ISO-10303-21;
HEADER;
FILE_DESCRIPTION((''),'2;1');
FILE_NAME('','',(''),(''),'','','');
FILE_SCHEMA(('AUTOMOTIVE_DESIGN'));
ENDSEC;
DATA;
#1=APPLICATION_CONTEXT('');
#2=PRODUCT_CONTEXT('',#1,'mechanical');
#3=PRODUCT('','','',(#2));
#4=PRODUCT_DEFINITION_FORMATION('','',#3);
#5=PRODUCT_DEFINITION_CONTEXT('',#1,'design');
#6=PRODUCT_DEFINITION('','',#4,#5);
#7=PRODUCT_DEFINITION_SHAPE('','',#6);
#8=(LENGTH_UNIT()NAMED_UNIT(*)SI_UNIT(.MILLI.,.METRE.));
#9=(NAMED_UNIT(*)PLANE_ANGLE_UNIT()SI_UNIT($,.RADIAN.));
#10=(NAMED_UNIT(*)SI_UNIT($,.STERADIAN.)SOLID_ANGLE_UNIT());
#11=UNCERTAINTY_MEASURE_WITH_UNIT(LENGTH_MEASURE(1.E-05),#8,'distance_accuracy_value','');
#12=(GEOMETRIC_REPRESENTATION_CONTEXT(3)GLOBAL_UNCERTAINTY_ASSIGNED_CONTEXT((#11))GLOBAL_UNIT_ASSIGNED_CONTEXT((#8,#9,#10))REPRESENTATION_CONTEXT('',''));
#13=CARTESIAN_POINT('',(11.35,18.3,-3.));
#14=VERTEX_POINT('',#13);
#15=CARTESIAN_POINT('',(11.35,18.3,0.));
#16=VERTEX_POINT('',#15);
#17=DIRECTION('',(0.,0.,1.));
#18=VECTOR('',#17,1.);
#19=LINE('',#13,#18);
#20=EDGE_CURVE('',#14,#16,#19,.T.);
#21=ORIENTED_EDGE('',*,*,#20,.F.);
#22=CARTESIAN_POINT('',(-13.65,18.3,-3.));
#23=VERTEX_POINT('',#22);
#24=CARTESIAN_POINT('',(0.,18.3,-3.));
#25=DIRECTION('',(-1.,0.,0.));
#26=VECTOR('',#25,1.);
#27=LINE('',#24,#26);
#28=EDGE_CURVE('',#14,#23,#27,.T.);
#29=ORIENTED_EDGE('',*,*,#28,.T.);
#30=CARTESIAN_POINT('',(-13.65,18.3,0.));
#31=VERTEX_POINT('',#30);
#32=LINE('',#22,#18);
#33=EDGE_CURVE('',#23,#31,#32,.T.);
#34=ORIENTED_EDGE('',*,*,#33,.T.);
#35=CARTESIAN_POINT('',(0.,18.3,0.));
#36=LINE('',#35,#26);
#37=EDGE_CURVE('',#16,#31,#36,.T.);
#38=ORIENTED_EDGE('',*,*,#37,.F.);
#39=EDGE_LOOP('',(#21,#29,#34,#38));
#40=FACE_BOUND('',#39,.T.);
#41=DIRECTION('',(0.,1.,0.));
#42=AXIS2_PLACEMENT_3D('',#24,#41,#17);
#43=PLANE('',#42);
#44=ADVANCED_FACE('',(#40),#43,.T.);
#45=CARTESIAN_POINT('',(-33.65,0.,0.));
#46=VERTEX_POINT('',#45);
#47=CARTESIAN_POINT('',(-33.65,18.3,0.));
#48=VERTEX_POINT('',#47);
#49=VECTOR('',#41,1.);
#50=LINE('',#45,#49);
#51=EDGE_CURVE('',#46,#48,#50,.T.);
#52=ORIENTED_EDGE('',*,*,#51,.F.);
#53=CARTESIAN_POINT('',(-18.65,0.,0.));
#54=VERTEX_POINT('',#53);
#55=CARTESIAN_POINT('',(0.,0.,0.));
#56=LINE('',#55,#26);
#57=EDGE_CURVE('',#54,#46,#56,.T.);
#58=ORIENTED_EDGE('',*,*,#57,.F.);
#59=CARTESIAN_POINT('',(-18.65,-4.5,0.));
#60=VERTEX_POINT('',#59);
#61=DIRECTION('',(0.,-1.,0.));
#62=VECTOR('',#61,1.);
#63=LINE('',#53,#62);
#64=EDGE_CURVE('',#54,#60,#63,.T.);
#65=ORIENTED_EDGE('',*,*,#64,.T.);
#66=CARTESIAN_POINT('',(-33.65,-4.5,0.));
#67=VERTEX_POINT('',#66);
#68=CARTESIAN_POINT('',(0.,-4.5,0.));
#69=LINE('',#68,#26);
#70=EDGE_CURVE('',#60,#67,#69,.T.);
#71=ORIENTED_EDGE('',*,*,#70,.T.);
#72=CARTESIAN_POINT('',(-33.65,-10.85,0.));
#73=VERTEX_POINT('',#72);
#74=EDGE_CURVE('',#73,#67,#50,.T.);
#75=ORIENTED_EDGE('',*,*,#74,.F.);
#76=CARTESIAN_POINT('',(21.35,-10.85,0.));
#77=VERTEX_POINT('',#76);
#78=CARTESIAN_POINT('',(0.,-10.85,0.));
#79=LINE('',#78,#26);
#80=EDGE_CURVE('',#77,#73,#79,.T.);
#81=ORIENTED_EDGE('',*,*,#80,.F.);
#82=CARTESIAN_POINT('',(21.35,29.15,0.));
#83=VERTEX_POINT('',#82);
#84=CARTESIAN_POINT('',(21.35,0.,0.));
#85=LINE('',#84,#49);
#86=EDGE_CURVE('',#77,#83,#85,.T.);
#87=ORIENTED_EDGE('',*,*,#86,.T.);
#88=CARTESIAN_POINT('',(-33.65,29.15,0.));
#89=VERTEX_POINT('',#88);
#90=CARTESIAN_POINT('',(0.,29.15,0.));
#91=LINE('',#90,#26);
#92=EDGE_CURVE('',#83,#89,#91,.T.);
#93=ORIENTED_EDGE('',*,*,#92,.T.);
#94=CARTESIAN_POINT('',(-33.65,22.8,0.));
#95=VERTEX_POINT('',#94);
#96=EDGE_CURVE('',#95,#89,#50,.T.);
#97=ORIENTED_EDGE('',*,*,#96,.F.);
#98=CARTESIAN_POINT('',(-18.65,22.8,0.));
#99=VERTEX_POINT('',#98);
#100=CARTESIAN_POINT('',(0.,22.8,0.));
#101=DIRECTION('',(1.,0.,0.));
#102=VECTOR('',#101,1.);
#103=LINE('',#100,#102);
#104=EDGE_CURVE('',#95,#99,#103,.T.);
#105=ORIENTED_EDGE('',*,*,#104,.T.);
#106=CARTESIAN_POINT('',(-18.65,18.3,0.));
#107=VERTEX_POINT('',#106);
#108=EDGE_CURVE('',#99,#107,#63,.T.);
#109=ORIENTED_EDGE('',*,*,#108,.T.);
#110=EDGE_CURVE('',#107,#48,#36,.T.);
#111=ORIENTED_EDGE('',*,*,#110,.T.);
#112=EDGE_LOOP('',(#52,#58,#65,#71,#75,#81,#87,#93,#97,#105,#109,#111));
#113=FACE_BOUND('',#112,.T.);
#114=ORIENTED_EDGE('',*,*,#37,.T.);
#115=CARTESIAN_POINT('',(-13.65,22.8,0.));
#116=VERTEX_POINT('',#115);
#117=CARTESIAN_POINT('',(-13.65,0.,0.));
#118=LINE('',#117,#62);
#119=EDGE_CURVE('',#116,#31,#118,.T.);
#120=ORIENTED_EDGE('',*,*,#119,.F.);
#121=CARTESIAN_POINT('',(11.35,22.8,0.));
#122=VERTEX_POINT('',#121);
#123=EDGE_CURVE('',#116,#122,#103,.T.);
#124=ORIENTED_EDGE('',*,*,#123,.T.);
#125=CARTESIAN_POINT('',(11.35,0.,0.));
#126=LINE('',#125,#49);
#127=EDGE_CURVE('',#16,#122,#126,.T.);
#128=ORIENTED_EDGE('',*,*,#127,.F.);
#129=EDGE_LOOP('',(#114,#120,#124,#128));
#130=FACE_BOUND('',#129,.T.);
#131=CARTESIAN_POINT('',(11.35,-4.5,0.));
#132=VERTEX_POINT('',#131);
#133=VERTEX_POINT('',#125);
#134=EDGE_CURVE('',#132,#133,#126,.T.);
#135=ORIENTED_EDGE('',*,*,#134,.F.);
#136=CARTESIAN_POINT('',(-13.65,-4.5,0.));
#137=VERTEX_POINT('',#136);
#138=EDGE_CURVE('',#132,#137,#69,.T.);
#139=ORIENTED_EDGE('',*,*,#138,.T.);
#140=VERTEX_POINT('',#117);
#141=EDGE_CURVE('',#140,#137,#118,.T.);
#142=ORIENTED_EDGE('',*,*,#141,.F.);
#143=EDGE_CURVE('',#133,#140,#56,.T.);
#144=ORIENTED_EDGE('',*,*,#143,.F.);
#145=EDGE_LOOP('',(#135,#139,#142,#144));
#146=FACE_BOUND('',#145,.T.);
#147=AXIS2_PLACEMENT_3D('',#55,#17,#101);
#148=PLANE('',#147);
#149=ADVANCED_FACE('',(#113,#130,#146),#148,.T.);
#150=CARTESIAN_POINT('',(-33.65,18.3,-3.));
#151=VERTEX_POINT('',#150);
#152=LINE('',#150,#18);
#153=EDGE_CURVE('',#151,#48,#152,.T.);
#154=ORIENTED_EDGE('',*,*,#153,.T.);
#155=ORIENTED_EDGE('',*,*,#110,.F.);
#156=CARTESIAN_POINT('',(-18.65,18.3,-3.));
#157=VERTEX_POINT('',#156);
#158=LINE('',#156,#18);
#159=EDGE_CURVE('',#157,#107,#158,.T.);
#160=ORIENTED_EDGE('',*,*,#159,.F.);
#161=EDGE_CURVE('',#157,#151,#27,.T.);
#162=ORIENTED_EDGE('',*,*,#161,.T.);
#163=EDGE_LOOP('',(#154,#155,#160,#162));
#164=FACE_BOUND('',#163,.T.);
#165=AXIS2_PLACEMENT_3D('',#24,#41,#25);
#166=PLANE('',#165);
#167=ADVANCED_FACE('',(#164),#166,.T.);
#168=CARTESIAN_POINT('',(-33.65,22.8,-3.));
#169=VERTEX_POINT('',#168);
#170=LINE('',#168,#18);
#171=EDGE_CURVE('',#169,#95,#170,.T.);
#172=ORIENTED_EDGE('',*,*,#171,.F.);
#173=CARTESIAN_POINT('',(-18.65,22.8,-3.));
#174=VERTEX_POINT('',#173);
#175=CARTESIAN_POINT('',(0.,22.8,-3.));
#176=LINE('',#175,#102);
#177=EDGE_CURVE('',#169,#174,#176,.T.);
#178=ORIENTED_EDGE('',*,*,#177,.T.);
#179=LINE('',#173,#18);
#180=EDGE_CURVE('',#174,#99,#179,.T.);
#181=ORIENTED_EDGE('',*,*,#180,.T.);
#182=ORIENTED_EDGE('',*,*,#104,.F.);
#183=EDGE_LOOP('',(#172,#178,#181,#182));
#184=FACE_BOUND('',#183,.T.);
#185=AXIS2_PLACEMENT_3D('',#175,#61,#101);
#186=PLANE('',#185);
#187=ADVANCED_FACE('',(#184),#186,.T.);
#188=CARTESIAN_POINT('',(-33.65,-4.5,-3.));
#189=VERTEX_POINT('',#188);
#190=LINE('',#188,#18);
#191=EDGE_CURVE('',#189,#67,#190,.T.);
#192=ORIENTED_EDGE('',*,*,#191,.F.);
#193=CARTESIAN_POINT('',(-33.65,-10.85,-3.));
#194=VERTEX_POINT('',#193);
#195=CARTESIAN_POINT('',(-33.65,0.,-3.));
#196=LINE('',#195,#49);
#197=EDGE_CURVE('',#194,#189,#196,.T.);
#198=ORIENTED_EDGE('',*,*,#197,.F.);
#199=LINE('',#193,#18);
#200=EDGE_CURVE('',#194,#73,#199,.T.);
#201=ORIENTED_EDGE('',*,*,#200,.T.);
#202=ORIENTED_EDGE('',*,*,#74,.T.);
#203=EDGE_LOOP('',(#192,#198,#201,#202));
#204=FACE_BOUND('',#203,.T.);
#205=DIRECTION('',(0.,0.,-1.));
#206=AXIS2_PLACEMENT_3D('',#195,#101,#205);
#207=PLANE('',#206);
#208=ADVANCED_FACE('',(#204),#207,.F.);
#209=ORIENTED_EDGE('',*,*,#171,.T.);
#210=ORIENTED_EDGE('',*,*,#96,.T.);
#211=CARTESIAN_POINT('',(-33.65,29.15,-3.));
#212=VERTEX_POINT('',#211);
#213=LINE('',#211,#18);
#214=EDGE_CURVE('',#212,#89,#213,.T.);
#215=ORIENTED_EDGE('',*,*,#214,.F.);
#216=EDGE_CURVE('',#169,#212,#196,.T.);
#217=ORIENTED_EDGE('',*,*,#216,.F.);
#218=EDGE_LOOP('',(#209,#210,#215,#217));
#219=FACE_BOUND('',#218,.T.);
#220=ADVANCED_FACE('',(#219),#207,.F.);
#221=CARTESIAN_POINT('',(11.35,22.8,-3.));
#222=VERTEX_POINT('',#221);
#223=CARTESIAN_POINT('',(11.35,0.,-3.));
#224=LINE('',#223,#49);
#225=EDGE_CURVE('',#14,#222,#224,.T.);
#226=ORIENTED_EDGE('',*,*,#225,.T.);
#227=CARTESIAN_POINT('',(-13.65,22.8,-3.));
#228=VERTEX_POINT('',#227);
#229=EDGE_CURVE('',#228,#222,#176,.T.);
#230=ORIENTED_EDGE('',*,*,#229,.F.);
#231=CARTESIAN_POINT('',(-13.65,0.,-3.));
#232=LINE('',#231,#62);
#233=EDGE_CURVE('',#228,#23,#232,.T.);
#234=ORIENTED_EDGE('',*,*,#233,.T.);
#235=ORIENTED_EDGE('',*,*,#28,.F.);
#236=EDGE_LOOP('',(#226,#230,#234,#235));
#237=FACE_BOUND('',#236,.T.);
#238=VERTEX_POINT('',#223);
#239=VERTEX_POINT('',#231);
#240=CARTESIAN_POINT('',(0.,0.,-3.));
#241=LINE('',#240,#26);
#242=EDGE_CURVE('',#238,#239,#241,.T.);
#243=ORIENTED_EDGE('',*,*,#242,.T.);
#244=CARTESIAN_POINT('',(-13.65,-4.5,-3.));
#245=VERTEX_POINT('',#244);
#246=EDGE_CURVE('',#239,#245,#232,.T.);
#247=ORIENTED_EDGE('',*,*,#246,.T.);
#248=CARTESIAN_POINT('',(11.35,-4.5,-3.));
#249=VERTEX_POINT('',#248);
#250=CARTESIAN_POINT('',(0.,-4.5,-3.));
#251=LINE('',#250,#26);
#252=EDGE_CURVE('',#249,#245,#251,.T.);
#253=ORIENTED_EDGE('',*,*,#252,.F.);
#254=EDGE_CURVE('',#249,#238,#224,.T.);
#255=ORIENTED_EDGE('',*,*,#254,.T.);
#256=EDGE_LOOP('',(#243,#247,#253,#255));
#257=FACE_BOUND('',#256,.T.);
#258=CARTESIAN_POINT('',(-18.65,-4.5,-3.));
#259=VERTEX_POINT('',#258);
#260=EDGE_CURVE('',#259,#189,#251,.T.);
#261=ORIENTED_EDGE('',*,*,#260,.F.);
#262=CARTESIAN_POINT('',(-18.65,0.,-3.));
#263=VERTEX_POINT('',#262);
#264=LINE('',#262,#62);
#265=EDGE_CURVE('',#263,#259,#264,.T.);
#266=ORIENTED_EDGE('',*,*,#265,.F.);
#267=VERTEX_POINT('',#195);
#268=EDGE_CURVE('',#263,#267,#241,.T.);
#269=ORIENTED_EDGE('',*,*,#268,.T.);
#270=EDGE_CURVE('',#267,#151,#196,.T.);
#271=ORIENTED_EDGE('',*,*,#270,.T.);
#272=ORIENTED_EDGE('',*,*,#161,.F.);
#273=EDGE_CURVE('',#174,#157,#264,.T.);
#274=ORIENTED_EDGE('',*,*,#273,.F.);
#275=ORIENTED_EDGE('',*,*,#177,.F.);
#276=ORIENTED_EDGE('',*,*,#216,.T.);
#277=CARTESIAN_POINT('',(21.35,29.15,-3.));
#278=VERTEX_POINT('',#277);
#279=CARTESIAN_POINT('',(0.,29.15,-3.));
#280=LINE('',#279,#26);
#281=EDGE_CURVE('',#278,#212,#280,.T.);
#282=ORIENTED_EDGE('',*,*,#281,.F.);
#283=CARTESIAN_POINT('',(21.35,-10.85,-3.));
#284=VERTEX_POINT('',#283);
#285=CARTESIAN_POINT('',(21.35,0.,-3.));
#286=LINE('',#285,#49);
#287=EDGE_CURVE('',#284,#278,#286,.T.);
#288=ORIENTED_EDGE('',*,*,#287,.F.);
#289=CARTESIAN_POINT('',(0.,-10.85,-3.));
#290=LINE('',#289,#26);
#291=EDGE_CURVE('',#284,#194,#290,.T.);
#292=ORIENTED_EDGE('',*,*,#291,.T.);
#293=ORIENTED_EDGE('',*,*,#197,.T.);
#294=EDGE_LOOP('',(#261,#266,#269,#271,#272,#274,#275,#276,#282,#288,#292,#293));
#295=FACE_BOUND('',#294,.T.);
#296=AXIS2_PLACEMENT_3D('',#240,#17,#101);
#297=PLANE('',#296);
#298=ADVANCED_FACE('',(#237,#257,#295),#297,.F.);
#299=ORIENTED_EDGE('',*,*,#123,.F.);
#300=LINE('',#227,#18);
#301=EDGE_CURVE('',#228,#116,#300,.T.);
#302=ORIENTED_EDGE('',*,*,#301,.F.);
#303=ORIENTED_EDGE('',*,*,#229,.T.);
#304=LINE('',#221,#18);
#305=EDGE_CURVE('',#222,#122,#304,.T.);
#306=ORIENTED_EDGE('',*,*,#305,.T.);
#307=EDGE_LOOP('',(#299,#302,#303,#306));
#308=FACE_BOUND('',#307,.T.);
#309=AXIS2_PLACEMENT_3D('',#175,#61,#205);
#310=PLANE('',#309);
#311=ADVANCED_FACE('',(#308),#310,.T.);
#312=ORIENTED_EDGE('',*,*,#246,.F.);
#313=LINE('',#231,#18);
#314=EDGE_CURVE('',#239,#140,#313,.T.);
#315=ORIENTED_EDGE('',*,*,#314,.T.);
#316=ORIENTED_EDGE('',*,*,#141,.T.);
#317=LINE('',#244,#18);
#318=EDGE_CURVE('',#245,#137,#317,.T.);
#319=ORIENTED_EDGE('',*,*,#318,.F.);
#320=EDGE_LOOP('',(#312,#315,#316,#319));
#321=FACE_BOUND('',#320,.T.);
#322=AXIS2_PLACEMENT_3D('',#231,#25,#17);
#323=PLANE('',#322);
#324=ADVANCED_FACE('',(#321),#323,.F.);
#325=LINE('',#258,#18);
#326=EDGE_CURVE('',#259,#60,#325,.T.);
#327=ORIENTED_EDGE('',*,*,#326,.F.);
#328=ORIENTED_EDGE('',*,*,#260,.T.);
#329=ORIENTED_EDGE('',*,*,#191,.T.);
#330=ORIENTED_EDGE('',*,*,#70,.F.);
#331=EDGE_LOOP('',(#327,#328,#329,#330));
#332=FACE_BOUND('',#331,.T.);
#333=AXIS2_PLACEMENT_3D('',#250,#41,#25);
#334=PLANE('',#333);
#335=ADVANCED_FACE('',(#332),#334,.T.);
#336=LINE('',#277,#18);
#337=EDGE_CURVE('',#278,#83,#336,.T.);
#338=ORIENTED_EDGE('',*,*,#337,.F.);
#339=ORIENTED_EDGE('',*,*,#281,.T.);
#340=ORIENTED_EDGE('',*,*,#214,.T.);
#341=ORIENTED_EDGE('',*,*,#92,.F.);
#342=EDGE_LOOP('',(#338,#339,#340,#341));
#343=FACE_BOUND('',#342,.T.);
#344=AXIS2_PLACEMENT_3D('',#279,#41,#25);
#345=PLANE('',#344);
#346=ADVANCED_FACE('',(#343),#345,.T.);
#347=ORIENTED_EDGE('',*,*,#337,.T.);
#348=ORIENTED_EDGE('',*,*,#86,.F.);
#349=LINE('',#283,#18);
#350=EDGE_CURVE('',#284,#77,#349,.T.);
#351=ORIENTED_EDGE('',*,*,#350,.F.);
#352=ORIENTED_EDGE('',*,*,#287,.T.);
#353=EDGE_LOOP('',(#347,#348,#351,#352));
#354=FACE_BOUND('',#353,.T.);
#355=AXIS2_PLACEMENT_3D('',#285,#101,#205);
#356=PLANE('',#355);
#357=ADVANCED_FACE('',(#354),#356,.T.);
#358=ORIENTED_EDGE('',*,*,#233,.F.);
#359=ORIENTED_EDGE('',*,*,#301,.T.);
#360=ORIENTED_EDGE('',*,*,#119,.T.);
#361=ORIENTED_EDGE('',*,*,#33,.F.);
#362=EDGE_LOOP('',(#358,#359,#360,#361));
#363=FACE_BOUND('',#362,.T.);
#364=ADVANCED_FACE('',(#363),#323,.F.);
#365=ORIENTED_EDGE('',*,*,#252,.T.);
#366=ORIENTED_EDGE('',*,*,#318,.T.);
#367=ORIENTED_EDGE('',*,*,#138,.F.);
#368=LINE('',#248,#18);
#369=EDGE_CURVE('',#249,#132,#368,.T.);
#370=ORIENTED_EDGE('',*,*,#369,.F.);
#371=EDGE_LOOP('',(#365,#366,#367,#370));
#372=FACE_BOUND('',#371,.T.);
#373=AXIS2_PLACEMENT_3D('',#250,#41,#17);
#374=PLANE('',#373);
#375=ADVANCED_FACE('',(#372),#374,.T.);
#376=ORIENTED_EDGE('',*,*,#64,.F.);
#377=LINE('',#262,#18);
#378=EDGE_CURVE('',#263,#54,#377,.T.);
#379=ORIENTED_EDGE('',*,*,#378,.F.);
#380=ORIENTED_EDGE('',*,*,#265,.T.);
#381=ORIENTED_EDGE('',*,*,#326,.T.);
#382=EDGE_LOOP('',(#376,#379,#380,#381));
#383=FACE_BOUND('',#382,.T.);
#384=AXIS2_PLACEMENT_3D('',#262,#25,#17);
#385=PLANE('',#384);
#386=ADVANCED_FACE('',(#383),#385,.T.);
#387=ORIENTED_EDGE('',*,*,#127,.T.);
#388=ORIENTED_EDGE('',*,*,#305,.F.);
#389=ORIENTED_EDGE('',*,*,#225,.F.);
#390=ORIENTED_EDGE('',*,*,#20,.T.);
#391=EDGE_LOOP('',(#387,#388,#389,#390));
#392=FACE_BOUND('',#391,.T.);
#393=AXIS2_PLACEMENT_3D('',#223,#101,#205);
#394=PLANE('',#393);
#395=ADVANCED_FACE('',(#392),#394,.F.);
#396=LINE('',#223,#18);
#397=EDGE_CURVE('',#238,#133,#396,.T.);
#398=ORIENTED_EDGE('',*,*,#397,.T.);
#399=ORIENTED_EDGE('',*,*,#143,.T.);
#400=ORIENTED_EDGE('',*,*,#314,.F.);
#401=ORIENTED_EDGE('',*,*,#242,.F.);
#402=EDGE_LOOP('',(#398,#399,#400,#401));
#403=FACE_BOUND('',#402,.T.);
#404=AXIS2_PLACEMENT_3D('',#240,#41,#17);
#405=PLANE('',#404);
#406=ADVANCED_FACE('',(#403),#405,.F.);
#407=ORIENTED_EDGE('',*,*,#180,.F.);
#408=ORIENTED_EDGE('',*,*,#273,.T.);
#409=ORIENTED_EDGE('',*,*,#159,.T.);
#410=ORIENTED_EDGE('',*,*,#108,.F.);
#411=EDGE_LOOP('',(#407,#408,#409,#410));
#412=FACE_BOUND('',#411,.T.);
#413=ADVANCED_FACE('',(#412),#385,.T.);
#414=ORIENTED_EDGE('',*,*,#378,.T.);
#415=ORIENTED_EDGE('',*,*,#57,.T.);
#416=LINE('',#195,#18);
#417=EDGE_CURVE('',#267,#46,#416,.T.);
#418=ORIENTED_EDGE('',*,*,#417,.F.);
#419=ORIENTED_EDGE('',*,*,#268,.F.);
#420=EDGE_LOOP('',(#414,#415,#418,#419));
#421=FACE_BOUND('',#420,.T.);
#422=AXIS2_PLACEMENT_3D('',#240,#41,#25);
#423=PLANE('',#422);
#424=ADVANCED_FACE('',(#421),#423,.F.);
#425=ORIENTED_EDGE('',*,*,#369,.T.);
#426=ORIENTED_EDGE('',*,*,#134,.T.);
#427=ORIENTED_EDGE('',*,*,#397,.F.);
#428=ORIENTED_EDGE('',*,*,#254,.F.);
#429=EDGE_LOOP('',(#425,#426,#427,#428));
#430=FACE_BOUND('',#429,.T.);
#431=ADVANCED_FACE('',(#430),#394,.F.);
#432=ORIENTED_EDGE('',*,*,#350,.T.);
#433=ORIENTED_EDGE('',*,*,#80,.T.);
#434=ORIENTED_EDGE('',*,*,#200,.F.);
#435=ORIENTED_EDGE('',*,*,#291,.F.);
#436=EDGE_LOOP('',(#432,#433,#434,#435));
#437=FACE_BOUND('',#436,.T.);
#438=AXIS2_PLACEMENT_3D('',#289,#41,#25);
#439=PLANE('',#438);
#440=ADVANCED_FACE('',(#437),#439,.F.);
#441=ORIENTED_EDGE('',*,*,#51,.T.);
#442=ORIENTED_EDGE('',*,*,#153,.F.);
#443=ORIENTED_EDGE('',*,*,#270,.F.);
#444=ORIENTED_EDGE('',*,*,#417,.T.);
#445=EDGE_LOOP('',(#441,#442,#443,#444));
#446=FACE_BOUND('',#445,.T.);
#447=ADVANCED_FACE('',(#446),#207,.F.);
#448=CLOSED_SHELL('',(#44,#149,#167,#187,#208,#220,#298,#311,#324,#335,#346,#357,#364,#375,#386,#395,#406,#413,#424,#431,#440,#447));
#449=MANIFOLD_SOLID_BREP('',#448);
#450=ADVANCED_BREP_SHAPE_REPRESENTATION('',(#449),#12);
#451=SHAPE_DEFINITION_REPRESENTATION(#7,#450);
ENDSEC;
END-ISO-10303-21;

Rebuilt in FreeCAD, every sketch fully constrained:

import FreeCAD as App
import Part
import Sketcher
from FreeCAD import Vector

doc = App.newDocument("Part")
body = doc.addObject("PartDesign::Body", "Body")

# Sketch on XY plane
sketch1 = body.newObject("Sketcher::SketchObject", "Sketch")
sketch1.AttachmentSupport = (doc.getObject("XY_Plane"), [""])
sketch1.MapMode = "FlatFace"
sketch1.addGeometry([
    Part.LineSegment(Vector(-33.6, -10.8, 0), Vector(21.4, -10.8, 0)),  # 0
    Part.LineSegment(Vector(21.4, -10.8, 0), Vector(21.4, 29.1, 0)),  # 1
    Part.LineSegment(Vector(21.4, 29.1, 0), Vector(-33.6, 29.1, 0)),  # 2
    Part.LineSegment(Vector(-33.6, 29.1, 0), Vector(-33.6, 22.8, 0)),  # 3
    Part.LineSegment(Vector(-33.6, 22.8, 0), Vector(-18.6, 22.8, 0)),  # 4
    Part.LineSegment(Vector(-18.6, 22.8, 0), Vector(-18.6, 18.3, 0)),  # 5
    Part.LineSegment(Vector(-18.6, 18.3, 0), Vector(-33.6, 18.3, 0)),  # 6
    Part.LineSegment(Vector(-33.6, 18.3, 0), Vector(-33.6, 0, 0)),  # 7
    Part.LineSegment(Vector(-33.6, 0, 0), Vector(-18.6, 0, 0)),  # 8
    Part.LineSegment(Vector(-18.6, 0, 0), Vector(-18.6, -4.5, 0)),  # 9
    Part.LineSegment(Vector(-18.6, -4.5, 0), Vector(-33.6, -4.5, 0)),  # 10
    Part.LineSegment(Vector(-33.6, -4.5, 0), Vector(-33.6, -10.8, 0)),  # 11
    Part.LineSegment(Vector(11.3, -4.5, 0), Vector(-13.7, -4.5, 0)),  # 12
    Part.LineSegment(Vector(-13.7, -4.5, 0), Vector(-13.7, 0, 0)),  # 13
    Part.LineSegment(Vector(-13.7, 0, 0), Vector(11.3, 0, 0)),  # 14
    Part.LineSegment(Vector(11.3, 0, 0), Vector(11.3, -4.5, 0)),  # 15
    Part.LineSegment(Vector(11.3, 18.3, 0), Vector(-13.7, 18.3, 0)),  # 16
    Part.LineSegment(Vector(-13.7, 18.3, 0), Vector(-13.7, 22.8, 0)),  # 17
    Part.LineSegment(Vector(-13.7, 22.8, 0), Vector(11.3, 22.8, 0)),  # 18
    Part.LineSegment(Vector(11.3, 22.8, 0), Vector(11.3, 18.3, 0)),  # 19
], False)
sketch1.addConstraint([
    Sketcher.Constraint("Coincident", 0, 2, 1, 1),
    Sketcher.Constraint("Coincident", 1, 2, 2, 1),
    Sketcher.Constraint("Coincident", 2, 2, 3, 1),
    Sketcher.Constraint("Coincident", 3, 2, 4, 1),
    Sketcher.Constraint("Coincident", 4, 2, 5, 1),
    Sketcher.Constraint("Coincident", 5, 2, 6, 1),
    Sketcher.Constraint("Coincident", 6, 2, 7, 1),
    Sketcher.Constraint("Coincident", 7, 2, 8, 1),
    Sketcher.Constraint("Coincident", 8, 2, 9, 1),
    Sketcher.Constraint("Coincident", 9, 2, 10, 1),
    Sketcher.Constraint("Coincident", 10, 2, 11, 1),
    Sketcher.Constraint("Coincident", 11, 2, 0, 1),
    Sketcher.Constraint("Coincident", 12, 2, 13, 1),
    Sketcher.Constraint("Coincident", 13, 2, 14, 1),
    Sketcher.Constraint("Coincident", 14, 2, 15, 1),
    Sketcher.Constraint("Coincident", 15, 2, 12, 1),
    Sketcher.Constraint("Coincident", 16, 2, 17, 1),
    Sketcher.Constraint("Coincident", 17, 2, 18, 1),
    Sketcher.Constraint("Coincident", 18, 2, 19, 1),
    Sketcher.Constraint("Coincident", 19, 2, 16, 1),
    Sketcher.Constraint("Horizontal", 0),
    Sketcher.Constraint("Vertical", 1),
    Sketcher.Constraint("Horizontal", 2),
    Sketcher.Constraint("Vertical", 3),
    Sketcher.Constraint("Horizontal", 4),
    Sketcher.Constraint("Vertical", 5),
    Sketcher.Constraint("Horizontal", 6),
    Sketcher.Constraint("Vertical", 7),
    Sketcher.Constraint("Horizontal", 8),
    Sketcher.Constraint("Vertical", 9),
    Sketcher.Constraint("Horizontal", 10),
    Sketcher.Constraint("Vertical", 11),
    Sketcher.Constraint("Horizontal", 12),
    Sketcher.Constraint("Vertical", 13),
    Sketcher.Constraint("Horizontal", 14),
    Sketcher.Constraint("Vertical", 15),
    Sketcher.Constraint("Horizontal", 16),
    Sketcher.Constraint("Vertical", 17),
    Sketcher.Constraint("Horizontal", 18),
    Sketcher.Constraint("Vertical", 19),
    Sketcher.Constraint("PointOnObject", 7, 2, -1),
    Sketcher.Constraint("PointOnObject", 13, 2, -1),
    Sketcher.Constraint("Horizontal", 10, 2, 12, 2),
    Sketcher.Constraint("Horizontal", 6, 2, 16, 2),
    Sketcher.Constraint("Horizontal", 4, 2, 17, 2),
    Sketcher.Constraint("Vertical", 3, 2, 6, 2),
    Sketcher.Constraint("Vertical", 5, 2, 8, 2),
    Sketcher.Constraint("Vertical", 7, 2, 10, 2),
    Sketcher.Constraint("Vertical", 13, 2, 16, 2),
    Sketcher.Constraint("Vertical", 15, 2, 18, 2),
    Sketcher.Constraint("Equal", 5, 9),
    Sketcher.Constraint("Equal", 3, 11),
    Sketcher.Constraint("DistanceX", 0, 1, 0, 2, 55.0),
    Sketcher.Constraint("DistanceX", 4, 1, 4, 2, 15.0),
    Sketcher.Constraint("DistanceX", 12, 2, 12, 1, 25.0),
    Sketcher.Constraint("DistanceY", 1, 1, 1, 2, 40.0),
    Sketcher.Constraint("DistanceY", 5, 2, 5, 1, 4.5),
    Sketcher.Constraint("DistanceY", 7, 2, 7, 1, 18.3),
    Sketcher.Constraint("DistanceX", 9, 2, 12, 2, 5.0),
    Sketcher.Constraint("DistanceX", -1, 1, 0, 2, 21.35),
])
pad1 = body.newObject("PartDesign::Pad", "Pad")
pad1.Profile = sketch1
pad1.Length = 3
pad1.Reversed = True

doc.recompute()
